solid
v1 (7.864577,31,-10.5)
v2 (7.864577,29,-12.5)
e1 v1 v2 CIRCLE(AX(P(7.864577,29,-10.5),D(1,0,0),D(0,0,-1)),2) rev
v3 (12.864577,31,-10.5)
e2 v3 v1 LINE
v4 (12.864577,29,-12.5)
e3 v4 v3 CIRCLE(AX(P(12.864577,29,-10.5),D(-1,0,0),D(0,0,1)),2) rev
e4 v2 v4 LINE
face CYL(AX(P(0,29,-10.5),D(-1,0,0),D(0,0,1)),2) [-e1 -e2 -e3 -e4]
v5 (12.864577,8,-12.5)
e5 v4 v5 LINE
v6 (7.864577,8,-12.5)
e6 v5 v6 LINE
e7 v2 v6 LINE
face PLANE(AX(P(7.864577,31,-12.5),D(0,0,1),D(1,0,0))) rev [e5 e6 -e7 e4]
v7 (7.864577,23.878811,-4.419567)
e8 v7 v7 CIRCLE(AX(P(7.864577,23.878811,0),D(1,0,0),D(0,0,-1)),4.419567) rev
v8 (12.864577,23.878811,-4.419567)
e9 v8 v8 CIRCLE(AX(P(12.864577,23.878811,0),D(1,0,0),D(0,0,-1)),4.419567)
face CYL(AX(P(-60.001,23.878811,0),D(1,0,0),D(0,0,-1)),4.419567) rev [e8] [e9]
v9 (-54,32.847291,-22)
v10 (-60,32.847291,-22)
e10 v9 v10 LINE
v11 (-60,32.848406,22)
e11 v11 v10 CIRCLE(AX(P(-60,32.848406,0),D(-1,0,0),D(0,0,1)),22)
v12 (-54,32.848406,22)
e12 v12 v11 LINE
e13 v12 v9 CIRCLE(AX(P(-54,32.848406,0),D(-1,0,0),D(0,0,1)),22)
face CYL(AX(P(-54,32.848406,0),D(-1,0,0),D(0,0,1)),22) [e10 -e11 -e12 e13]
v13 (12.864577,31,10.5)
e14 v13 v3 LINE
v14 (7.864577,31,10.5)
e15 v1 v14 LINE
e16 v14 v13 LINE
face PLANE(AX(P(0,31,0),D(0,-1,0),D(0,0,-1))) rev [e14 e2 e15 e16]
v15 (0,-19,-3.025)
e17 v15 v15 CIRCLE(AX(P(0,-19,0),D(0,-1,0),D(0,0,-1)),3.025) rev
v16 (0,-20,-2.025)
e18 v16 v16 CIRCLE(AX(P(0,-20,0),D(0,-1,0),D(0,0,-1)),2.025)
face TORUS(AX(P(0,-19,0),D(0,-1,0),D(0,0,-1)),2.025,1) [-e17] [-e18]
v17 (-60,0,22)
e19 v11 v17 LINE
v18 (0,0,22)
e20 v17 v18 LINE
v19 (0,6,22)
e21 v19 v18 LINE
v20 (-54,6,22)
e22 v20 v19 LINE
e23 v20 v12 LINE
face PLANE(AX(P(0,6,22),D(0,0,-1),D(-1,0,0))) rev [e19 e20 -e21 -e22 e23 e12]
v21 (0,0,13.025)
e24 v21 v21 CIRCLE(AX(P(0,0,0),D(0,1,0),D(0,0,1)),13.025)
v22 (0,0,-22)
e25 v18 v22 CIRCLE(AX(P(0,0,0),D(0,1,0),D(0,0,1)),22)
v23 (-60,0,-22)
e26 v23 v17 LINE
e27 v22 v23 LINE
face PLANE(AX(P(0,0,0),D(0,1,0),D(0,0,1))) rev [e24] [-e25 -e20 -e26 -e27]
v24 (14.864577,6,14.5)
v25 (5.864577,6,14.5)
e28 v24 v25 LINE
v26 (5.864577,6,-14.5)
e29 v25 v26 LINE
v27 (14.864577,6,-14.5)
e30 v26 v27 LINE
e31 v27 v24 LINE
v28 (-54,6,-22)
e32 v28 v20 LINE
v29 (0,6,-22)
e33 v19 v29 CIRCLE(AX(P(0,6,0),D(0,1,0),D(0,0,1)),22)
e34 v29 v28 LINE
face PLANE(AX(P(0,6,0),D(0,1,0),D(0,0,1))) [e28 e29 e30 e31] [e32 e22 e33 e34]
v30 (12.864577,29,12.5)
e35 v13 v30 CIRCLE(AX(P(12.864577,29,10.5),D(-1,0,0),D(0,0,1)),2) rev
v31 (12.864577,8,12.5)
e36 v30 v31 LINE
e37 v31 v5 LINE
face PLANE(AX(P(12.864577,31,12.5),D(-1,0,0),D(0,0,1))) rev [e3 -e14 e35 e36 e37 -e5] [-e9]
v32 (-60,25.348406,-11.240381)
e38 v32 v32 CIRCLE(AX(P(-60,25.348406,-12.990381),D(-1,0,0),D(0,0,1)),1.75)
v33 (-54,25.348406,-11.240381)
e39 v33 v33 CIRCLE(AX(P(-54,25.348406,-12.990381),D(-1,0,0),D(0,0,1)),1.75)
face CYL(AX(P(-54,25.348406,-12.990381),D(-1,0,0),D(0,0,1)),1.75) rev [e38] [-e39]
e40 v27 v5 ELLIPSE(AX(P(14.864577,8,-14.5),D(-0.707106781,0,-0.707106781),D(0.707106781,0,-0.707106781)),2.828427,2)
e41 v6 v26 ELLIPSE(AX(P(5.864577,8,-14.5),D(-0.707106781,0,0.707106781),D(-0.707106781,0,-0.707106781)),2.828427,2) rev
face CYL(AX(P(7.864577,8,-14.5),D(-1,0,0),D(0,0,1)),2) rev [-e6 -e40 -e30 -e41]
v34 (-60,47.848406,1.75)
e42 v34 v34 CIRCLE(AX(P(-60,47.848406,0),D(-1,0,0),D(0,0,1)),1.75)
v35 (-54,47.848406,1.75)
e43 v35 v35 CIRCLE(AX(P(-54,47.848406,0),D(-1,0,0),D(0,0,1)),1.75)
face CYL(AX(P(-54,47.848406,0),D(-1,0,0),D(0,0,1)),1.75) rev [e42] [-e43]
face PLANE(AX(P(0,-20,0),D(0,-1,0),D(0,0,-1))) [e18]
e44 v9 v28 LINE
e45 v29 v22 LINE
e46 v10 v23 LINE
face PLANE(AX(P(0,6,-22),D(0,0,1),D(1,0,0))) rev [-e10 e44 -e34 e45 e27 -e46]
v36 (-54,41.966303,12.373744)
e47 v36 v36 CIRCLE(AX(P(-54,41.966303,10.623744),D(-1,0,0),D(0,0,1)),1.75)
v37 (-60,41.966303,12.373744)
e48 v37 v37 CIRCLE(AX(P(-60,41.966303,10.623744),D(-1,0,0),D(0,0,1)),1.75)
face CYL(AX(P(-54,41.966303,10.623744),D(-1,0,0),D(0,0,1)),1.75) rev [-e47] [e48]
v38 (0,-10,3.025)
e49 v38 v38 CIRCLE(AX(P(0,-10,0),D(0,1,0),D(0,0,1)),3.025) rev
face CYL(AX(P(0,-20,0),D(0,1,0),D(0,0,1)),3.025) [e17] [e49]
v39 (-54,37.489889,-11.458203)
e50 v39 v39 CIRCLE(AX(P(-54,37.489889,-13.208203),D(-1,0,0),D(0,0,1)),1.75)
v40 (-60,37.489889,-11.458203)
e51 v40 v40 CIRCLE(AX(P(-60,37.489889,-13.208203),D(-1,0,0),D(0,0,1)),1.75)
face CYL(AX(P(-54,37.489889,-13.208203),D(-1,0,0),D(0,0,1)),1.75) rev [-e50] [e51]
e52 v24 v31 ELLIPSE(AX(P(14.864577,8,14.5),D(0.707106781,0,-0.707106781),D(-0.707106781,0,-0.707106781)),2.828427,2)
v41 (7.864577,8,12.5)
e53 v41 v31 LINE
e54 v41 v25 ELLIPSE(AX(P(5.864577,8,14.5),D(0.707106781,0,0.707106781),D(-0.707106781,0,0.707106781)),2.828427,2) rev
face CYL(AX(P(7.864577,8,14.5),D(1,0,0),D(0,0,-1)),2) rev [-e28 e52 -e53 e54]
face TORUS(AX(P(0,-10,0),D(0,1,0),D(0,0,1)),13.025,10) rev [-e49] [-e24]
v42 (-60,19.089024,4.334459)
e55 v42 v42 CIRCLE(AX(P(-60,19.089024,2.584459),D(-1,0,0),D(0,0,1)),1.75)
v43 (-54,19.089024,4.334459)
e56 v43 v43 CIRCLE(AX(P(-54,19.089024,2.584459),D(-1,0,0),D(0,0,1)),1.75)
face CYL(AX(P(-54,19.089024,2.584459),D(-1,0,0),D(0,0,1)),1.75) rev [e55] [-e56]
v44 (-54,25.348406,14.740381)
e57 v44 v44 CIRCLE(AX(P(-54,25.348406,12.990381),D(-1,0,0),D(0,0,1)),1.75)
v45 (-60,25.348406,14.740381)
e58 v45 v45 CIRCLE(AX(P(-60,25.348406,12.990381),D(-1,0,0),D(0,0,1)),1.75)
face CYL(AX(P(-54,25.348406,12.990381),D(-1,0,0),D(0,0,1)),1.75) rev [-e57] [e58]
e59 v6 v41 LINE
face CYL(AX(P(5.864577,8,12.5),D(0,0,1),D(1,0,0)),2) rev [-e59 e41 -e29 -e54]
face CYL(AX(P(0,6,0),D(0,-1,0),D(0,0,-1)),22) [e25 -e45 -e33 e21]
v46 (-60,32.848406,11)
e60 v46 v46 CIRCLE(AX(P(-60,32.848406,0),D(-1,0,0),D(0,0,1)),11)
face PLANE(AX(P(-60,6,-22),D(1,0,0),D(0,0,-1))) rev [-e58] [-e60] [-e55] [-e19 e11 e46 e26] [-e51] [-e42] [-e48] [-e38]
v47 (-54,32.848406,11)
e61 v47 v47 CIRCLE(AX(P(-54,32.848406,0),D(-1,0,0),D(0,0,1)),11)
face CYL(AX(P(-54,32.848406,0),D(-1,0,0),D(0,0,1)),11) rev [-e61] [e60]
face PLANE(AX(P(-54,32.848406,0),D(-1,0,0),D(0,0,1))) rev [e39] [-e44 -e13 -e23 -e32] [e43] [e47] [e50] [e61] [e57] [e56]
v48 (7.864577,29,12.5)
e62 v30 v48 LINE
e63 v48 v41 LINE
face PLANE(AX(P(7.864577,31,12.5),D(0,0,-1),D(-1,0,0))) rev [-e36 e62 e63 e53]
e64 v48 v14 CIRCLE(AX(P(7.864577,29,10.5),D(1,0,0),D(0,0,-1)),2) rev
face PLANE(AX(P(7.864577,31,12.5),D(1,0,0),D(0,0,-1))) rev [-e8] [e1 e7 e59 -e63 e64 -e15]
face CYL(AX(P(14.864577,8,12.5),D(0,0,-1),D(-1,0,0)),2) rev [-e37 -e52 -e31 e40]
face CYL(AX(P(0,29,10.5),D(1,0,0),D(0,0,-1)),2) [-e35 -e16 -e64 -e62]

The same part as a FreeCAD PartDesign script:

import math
import FreeCAD as App
import Part
import Sketcher

V = App.Vector


def edges_at(feature, points):
    """Names of the edges that pass closest to the given points."""
    edges = feature.Shape.Edges
    near = lambda p: min(range(len(edges)), key=lambda i: edges[i].distToShape(Part.Vertex(*p))[0])
    return sorted({f"Edge{near(p) + 1}" for p in points})


def add_polygon(sketch, points):
    """Adds a closed chain of lines whose ends are joined by coincident constraints."""
    first, n = sketch.GeometryCount, len(points)
    for a, b in zip(points, points[1:] + points[:1]):
        sketch.addGeometry(Part.LineSegment(App.Vector(*a, 0), App.Vector(*b, 0)), False)
    for i in range(n):
        sketch.addConstraint(Sketcher.Constraint("Coincident", first + i, 2, first + (i + 1) % n, 1))

doc = App.newDocument("Part")
params = doc.addObject("Spreadsheet::Sheet", "Params")
for row, (alias, value) in enumerate([
    ("sketch1_radius", "22 mm"),
    ("sketch1_width", "60 mm"),
    ("pad1_length", "6 mm"),
    ("sketch2_radius", "22 mm"),
    ("pad2_length", "6 mm"),
    ("sketch3_diameter", "22 mm"),
    ("sketch3_diameter2", "3.5 mm"),
    ("pocket1_length", "6 mm"),
    ("sketch4_diameter", "6.05 mm"),
    ("pad3_length", "20 mm"),
    ("fillet_radius", "10 mm"),
    ("fillet2_radius", "1 mm"),
    ("sketch5_width", "5 mm"),
    ("sketch5_height", "25 mm"),
    ("pad4_length", "25 mm"),
    ("fillet3_radius", "2 mm"),
], start=1):
    params.set(f"A{row}", alias)
    params.set(f"B{row}", "=" + value)
    params.setAlias(f"B{row}", alias)

body = doc.addObject("PartDesign::Body", "Body")

sketch1 = doc.addObject("Sketcher::SketchObject", "Sketch")
body.addObject(sketch1)
sketch1.AttachmentSupport = (doc.XZ_Plane, [""])
sketch1.MapMode = "FlatFace"
sketch1.addGeometry(Part.LineSegment(V(-60, 22, 0), V(0, 22, 0)), False)
sketch1.addGeometry(Part.ArcOfCircle(Part.Circle(V(0, 0, 0), V(0, 0, 1), 22), math.radians(-90), math.radians(90)), False)
sketch1.addGeometry(Part.LineSegment(V(0, -22, 0), V(-60, -22, 0)), False)
sketch1.addGeometry(Part.LineSegment(V(-60, -22, 0), V(-60, 22, 0)), False)
sketch1.addConstraint(Sketcher.Constraint("Tangent", 0, 2, 1, 2))
sketch1.addConstraint(Sketcher.Constraint("Tangent", 1, 1, 2, 1))
sketch1.addConstraint(Sketcher.Constraint("Coincident", 2, 2, 3, 1))
sketch1.addConstraint(Sketcher.Constraint("Coincident", 3, 2, 0, 1))
sketch1.addConstraint(Sketcher.Constraint("Horizontal", 0))
sketch1.addConstraint(Sketcher.Constraint("Horizontal", 2))
sketch1.addConstraint(Sketcher.Constraint("Vertical", 3))
sketch1.addConstraint(Sketcher.Constraint("Coincident", 1, 3, -1, 1))
sketch1.addConstraint(Sketcher.Constraint("Radius", 1, 22.0))
sketch1.addConstraint(Sketcher.Constraint("DistanceX", 0, 1, 0, 2, 60.0))
sketch1.setExpression("Constraints[8]", "Params.sketch1_radius")
sketch1.setExpression("Constraints[9]", "Params.sketch1_width")
pad1 = doc.addObject("PartDesign::Pad", "Pad")
body.addObject(pad1)
pad1.Profile = sketch1
pad1.setExpression("Length", "Params.pad1_length")
pad1.Reversed = True

sketch2 = doc.addObject("Sketcher::SketchObject", "Sketch001")
body.addObject(sketch2)
sketch2.AttachmentSupport = (doc.YZ_Plane, [""])
sketch2.MapMode = "FlatFace"
sketch2.AttachmentOffset = App.Placement(V(0, 0, -60), App.Rotation())
sketch2.addGeometry(Part.LineSegment(V(33, -22, 0), V(6, -22, 0)), False)
sketch2.addGeometry(Part.LineSegment(V(6, -22, 0), V(6, 22, 0)), False)
sketch2.addGeometry(Part.LineSegment(V(6, 22, 0), V(33, 22, 0)), False)
sketch2.addGeometry(Part.ArcOfCircle(Part.Circle(V(33, 0, 0), V(0, 0, 1), 22), math.radians(-90), math.radians(90)), False)
sketch2.addConstraint(Sketcher.Constraint("Coincident", 0, 2, 1, 1))
sketch2.addConstraint(Sketcher.Constraint("Coincident", 1, 2, 2, 1))
sketch2.addConstraint(Sketcher.Constraint("Tangent", 2, 2, 3, 2))
sketch2.addConstraint(Sketcher.Constraint("Coincident", 3, 1, 0, 1))
sketch2.addConstraint(Sketcher.Constraint("Horizontal", 0))
sketch2.addConstraint(Sketcher.Constraint("Vertical", 1))
sketch2.addConstraint(Sketcher.Constraint("Horizontal", 2))
sketch2.addConstraint(Sketcher.Constraint("PointOnObject", 3, 3, -1))
sketch2.addConstraint(Sketcher.Constraint("Radius", 3, 22.0))
sketch2.addConstraint(Sketcher.Constraint("DistanceX", -1, 1, 0, 2, 6.0))
sketch2.addConstraint(Sketcher.Constraint("DistanceX", 0, 2, 0, 1, 26.847291))
sketch2.addConstraint(Sketcher.Constraint("DistanceX", 2, 1, 2, 2, 26.848406))
sketch2.setExpression("Constraints[8]", "Params.sketch2_radius")
pad2 = doc.addObject("PartDesign::Pad", "Pad001")
body.addObject(pad2)
pad2.Profile = sketch2
pad2.setExpression("Length", "Params.pad2_length")

sketch3 = doc.addObject("Sketcher::SketchObject", "Sketch002")
body.addObject(sketch3)
sketch3.AttachmentSupport = (doc.YZ_Plane, [""])
sketch3.MapMode = "FlatFace"
sketch3.AttachmentOffset = App.Placement(V(0, 0, -60), App.Rotation())
sketch3.addGeometry(Part.Circle(V(32.8, 0, 0), V(0, 0, 1), 11), False)
sketch3.addGeometry(Part.Circle(V(47.8, 0, 0), V(0, 0, 1), 1.8), False)
sketch3.addGeometry(Part.Circle(V(25.3, 13, 0), V(0, 0, 1), 1.8), False)
sketch3.addGeometry(Part.Circle(V(25.3, -13, 0), V(0, 0, 1), 1.8), False)
sketch3.addGeometry(Part.Circle(V(42, 10.6, 0), V(0, 0, 1), 1.8), False)
sketch3.addGeometry(Part.Circle(V(19.1, 2.6, 0), V(0, 0, 1), 1.8), False)
sketch3.addGeometry(Part.Circle(V(37.5, -13.2, 0), V(0, 0, 1), 1.8), False)
sketch3.addConstraint(Sketcher.Constraint("Equal", 1, 2))
sketch3.addConstraint(Sketcher.Constraint("Equal", 2, 3))
sketch3.addConstraint(Sketcher.Constraint("Equal", 3, 4))
sketch3.addConstraint(Sketcher.Constraint("Equal", 4, 5))
sketch3.addConstraint(Sketcher.Constraint("Equal", 5, 6))
sketch3.addConstraint(Sketcher.Constraint("Symmetric", 2, 3, 3, 3, -1))
sketch3.addConstraint(Sketcher.Constraint("PointOnObject", 0, 3, -1))
sketch3.addConstraint(Sketcher.Constraint("PointOnObject", 1, 3, -1))
sketch3.addConstraint(Sketcher.Constraint("Diameter", 0, 22.0))
sketch3.addConstraint(Sketcher.Constraint("Diameter", 1, 3.5))
sketch3.addConstraint(Sketcher.Constraint("DistanceX", 0, 3, 1, 3, 15.0))
sketch3.addConstraint(Sketcher.Constraint("DistanceX", 2, 3, 0, 3, 7.5))
sketch3.addConstraint(Sketcher.Constraint("DistanceY", -1, 1, 2, 3, 12.990381))
sketch3.addConstraint(Sketcher.Constraint("DistanceY", -1, 1, 5, 3, 2.584459))
sketch3.addConstraint(Sketcher.Constraint("DistanceX", -1, 1, 6, 3, 37.489889))
sketch3.addConstraint(Sketcher.Constraint("DistanceX", 5, 3, 2, 3, 6.259381))
sketch3.addConstraint(Sketcher.Constraint("DistanceX", 5, 3, 4, 3, 22.877279))
sketch3.addConstraint(Sketcher.Constraint("DistanceX", -1, 1, 0, 3, 32.848406))
sketch3.addConstraint(Sketcher.Constraint("DistanceY", -1, 1, 4, 3, 10.623744))
sketch3.addConstraint(Sketcher.Constraint("DistanceY", 6, 3, -1, 1, 13.208203))
sketch3.setExpression("Constraints[8]", "Params.sketch3_diameter")
sketch3.setExpression("Constraints[9]", "Params.sketch3_diameter2")
pocket1 = doc.addObject("PartDesign::Pocket", "Pocket")
body.addObject(pocket1)
pocket1.Profile = sketch3
pocket1.setExpression("Length", "Params.pocket1_length")
pocket1.Reversed = True

sketch4 = doc.addObject("Sketcher::SketchObject", "Sketch003")
body.addObject(sketch4)
sketch4.AttachmentSupport = (doc.XZ_Plane, [""])
sketch4.MapMode = "FlatFace"
sketch4.addGeometry(Part.Circle(V(0, 0, 0), V(0, 0, 1), 3), False)
sketch4.addConstraint(Sketcher.Constraint("Coincident", 0, 3, -1, 1))
sketch4.addConstraint(Sketcher.Constraint("Diameter", 0, 6.05))
sketch4.setExpression("Constraints[1]", "Params.sketch4_diameter")
pad3 = doc.addObject("PartDesign::Pad", "Pad002")
body.addObject(pad3)
pad3.Profile = sketch4
pad3.setExpression("Length", "Params.pad3_length")
doc.recompute()

fillet = doc.addObject("PartDesign::Fillet", "Fillet")
body.addObject(fillet)
fillet.Base = (pad3, edges_at(pad3, [(0, 0, -3.025)]))
fillet.setExpression("Radius", "Params.fillet_radius")
doc.recompute()

fillet2 = doc.addObject("PartDesign::Fillet", "Fillet001")
body.addObject(fillet2)
fillet2.Base = (fillet, edges_at(fillet, [(0, -20, -3.025)]))
fillet2.setExpression("Radius", "Params.fillet2_radius")

sketch5 = doc.addObject("Sketcher::SketchObject", "Sketch004")
body.addObject(sketch5)
sketch5.AttachmentSupport = (doc.XZ_Plane, [""])
sketch5.MapMode = "FlatFace"
sketch5.AttachmentOffset = App.Placement(V(0, 0, -6), App.Rotation())
add_polygon(sketch5, [(8, -12), (8, 12), (13, 12), (13, -12)])
sketch5.addConstraint(Sketcher.Constraint("Vertical", 0))
sketch5.addConstraint(Sketcher.Constraint("Horizontal", 1))
sketch5.addConstraint(Sketcher.Constraint("Vertical", 2))
sketch5.addConstraint(Sketcher.Constraint("Horizontal", 3))
sketch5.addConstraint(Sketcher.Constraint("DistanceX", 1, 1, 1, 2, 5.0))
sketch5.addConstraint(Sketcher.Constraint("DistanceY", 0, 1, 0, 2, 25.0))
sketch5.addConstraint(Sketcher.Constraint("DistanceY", -1, 1, 0, 2, 12.5))
sketch5.addConstraint(Sketcher.Constraint("DistanceX", -1, 1, 0, 2, 7.864577))
sketch5.setExpression("Constraints[8]", "Params.sketch5_width")
sketch5.setExpression("Constraints[9]", "Params.sketch5_height")
pad4 = doc.addObject("PartDesign::Pad", "Pad003")
body.addObject(pad4)
pad4.Profile = sketch5
pad4.setExpression("Length", "Params.pad4_length")
pad4.Reversed = True

sketch6 = doc.addObject("Sketcher::SketchObject", "Sketch005")
body.addObject(sketch6)
sketch6.AttachmentSupport = (doc.YZ_Plane, [""])
sketch6.MapMode = "FlatFace"
sketch6.AttachmentOffset = App.Placement(V(0, 0, 12.864577), App.Rotation())
sketch6.addGeometry(Part.Circle(V(23.9, 0, 0), V(0, 0, 1), 4.4), False)
sketch6.addConstraint(Sketcher.Constraint("PointOnObject", 0, 3, -1))
sketch6.addConstraint(Sketcher.Constraint("Diameter", 0, 8.839134))
sketch6.addConstraint(Sketcher.Constraint("DistanceX", -1, 1, 0, 3, 23.878811))
pocket2 = doc.addObject("PartDesign::Pocket", "Pocket001")
body.addObject(pocket2)
pocket2.Profile = sketch6
pocket2.Type = "UpToFirst"
doc.recompute()

fillet3 = doc.addObject("PartDesign::Fillet", "Fillet002")
body.addObject(fillet3)
fillet3.Base = (pocket2, edges_at(pocket2, [
    (12.865, 6, 0),
    (10.365, 6, -12.5),
    (7.865, 6, 0),
    (10.365, 6, 12.5),
    (10.365, 31, -12.5),
    (10.365, 31, 12.5),
]))
fillet3.setExpression("Radius", "Params.fillet3_radius")

doc.recompute()
